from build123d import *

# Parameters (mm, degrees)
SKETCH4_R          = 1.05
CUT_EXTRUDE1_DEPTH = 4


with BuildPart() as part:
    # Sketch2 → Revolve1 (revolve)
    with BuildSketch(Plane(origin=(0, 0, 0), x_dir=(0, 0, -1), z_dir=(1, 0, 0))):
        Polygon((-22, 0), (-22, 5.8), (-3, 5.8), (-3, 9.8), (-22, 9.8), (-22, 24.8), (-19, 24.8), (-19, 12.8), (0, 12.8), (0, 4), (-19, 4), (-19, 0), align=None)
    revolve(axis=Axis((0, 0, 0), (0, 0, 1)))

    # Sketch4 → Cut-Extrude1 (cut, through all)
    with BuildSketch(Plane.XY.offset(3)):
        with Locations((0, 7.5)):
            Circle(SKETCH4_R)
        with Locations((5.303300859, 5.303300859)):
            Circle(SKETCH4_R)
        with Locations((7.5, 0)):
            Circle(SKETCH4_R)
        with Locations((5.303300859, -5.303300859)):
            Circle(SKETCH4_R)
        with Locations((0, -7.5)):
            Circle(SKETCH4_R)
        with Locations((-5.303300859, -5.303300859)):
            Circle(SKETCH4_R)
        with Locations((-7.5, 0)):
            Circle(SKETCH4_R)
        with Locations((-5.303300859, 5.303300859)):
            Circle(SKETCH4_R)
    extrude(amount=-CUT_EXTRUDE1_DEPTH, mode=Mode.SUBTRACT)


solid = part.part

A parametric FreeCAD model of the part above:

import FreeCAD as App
import Part
import Sketcher
from FreeCAD import Vector
Q = App.Units.Quantity

doc = App.newDocument("Part")
params = doc.addObject("Spreadsheet::Sheet", "Params")
for row, (alias, value) in enumerate([
    ("sketch1_width", "4 mm"),
    ("sketch1_width2", "12 mm"),
    ("sketch1_width3", "15 mm"),
    ("sketch1_height", "3 mm"),
    ("sketch1_height2", "19 mm"),
    ("revolution_angle", "360 deg"),
    ("sketch2_diameter", "2.1 mm"),
], start=1):
    params.set(f"A{row}", alias)
    params.set(f"B{row}", "=" + value)
    params.setAlias(f"B{row}", alias)

body = doc.addObject("PartDesign::Body", "Body")

# Sketch on YZ plane
sketch1 = doc.addObject("Sketcher::SketchObject", "Sketch")
body.addObject(sketch1)
sketch1.AttachmentSupport = (doc.YZ_Plane, [""])
sketch1.MapMode = "FlatFace"
sketch1.addGeometry([
    Part.LineSegment(Vector(5.8, 22, 0), Vector(0, 22, 0)),  # 0
    Part.LineSegment(Vector(0, 22, 0), Vector(0, 19, 0)),  # 1
    Part.LineSegment(Vector(0, 19, 0), Vector(4, 19, 0)),  # 2
    Part.LineSegment(Vector(4, 19, 0), Vector(4, 0, 0)),  # 3
    Part.LineSegment(Vector(4, 0, 0), Vector(12.8, 0, 0)),  # 4
    Part.LineSegment(Vector(12.8, 0, 0), Vector(12.8, 19, 0)),  # 5
    Part.LineSegment(Vector(12.8, 19, 0), Vector(24.8, 19, 0)),  # 6
    Part.LineSegment(Vector(24.8, 19, 0), Vector(24.8, 22, 0)),  # 7
    Part.LineSegment(Vector(24.8, 22, 0), Vector(9.8, 22, 0)),  # 8
    Part.LineSegment(Vector(9.8, 22, 0), Vector(9.8, 3, 0)),  # 9
    Part.LineSegment(Vector(9.8, 3, 0), Vector(5.8, 3, 0)),  # 10
    Part.LineSegment(Vector(5.8, 3, 0), Vector(5.8, 22, 0)),  # 11
], False)
sketch1.addConstraint([
    Sketcher.Constraint("Coincident", 0, 2, 1, 1),
    Sketcher.Constraint("Coincident", 1, 2, 2, 1),
    Sketcher.Constraint("Coincident", 2, 2, 3, 1),
    Sketcher.Constraint("Coincident", 3, 2, 4, 1),
    Sketcher.Constraint("Coincident", 4, 2, 5, 1),
    Sketcher.Constraint("Coincident", 5, 2, 6, 1),
    Sketcher.Constraint("Coincident", 6, 2, 7, 1),
    Sketcher.Constraint("Coincident", 7, 2, 8, 1),
    Sketcher.Constraint("Coincident", 8, 2, 9, 1),
    Sketcher.Constraint("Coincident", 9, 2, 10, 1),
    Sketcher.Constraint("Coincident", 10, 2, 11, 1),
    Sketcher.Constraint("Coincident", 11, 2, 0, 1),
    Sketcher.Constraint("Horizontal", 0),
    Sketcher.Constraint("Vertical", 1),
    Sketcher.Constraint("Horizontal", 2),
    Sketcher.Constraint("Vertical", 3),
    Sketcher.Constraint("Horizontal", 4),
    Sketcher.Constraint("Vertical", 5),
    Sketcher.Constraint("Horizontal", 6),
    Sketcher.Constraint("Vertical", 7),
    Sketcher.Constraint("Horizontal", 8),
    Sketcher.Constraint("Vertical", 9),
    Sketcher.Constraint("Horizontal", 10),
    Sketcher.Constraint("Vertical", 11),
    Sketcher.Constraint("PointOnObject", 0, 2, -2),
    Sketcher.Constraint("PointOnObject", 3, 2, -1),
    Sketcher.Constraint("Horizontal", 2, 2, 5, 2),
    Sketcher.Constraint("Horizontal", 0, 2, 7, 2),
    Sketcher.Constraint("Equal", 2, 10),
    Sketcher.Constraint("Equal", 5, 9),
    Sketcher.Constraint("DistanceX", 2, 1, 2, 2, Q("4 mm")),
    Sketcher.Constraint("DistanceX", 6, 1, 6, 2, Q("12 mm")),
    Sketcher.Constraint("DistanceX", 8, 2, 8, 1, Q("15 mm")),
    Sketcher.Constraint("DistanceY", 1, 2, 1, 1, Q("3 mm")),
    Sketcher.Constraint("DistanceY", 3, 2, 3, 1, Q("19 mm")),
    Sketcher.Constraint("DistanceX", 0, 2, 0, 1, Q("5.8 mm")),
])
sketch1.setExpression("Constraints[30]", "Params.sketch1_width")
sketch1.setExpression("Constraints[31]", "Params.sketch1_width2")
sketch1.setExpression("Constraints[32]", "Params.sketch1_width3")
sketch1.setExpression("Constraints[33]", "Params.sketch1_height")
sketch1.setExpression("Constraints[34]", "Params.sketch1_height2")
revolution = doc.addObject("PartDesign::Revolution", "Revolution")
body.addObject(revolution)
revolution.Profile = sketch1
revolution.ReferenceAxis = (sketch1, ["V_Axis"])
revolution.setExpression("Angle", "Params.revolution_angle")

# Sketch on XY plane
sketch2 = doc.addObject("Sketcher::SketchObject", "Sketch001")
body.addObject(sketch2)
sketch2.AttachmentSupport = (doc.XY_Plane, [""])
sketch2.MapMode = "FlatFace"
sketch2.AttachmentOffset = App.Placement(Vector(0, 0, 3), App.Rotation())
sketch2.addGeometry([
    Part.Circle(Vector(0, 7.5, 0), Vector(0, 0, 1), 1.1),  # 0
    Part.Circle(Vector(5.3, 5.3, 0), Vector(0, 0, 1), 1.1),  # 1
    Part.Circle(Vector(7.5, 0, 0), Vector(0, 0, 1), 1.1),  # 2
    Part.Circle(Vector(5.3, -5.3, 0), Vector(0, 0, 1), 1.1),  # 3
    Part.Circle(Vector(0, -7.5, 0), Vector(0, 0, 1), 1.1),  # 4
    Part.Circle(Vector(-5.3, -5.3, 0), Vector(0, 0, 1), 1.1),  # 5
    Part.Circle(Vector(-7.5, 0, 0), Vector(0, 0, 1), 1.1),  # 6
    Part.Circle(Vector(-5.3, 5.3, 0), Vector(0, 0, 1), 1.1),  # 7
], False)
sketch2.addConstraint([
    Sketcher.Constraint("Equal", 0, 1),
    Sketcher.Constraint("Equal", 1, 2),
    Sketcher.Constraint("Equal", 2, 3),
    Sketcher.Constraint("Equal", 3, 4),
    Sketcher.Constraint("Equal", 4, 5),
    Sketcher.Constraint("Equal", 5, 6),
    Sketcher.Constraint("Equal", 6, 7),
    Sketcher.Constraint("Symmetric", 0, 3, 4, 3, -1, 1),
    Sketcher.Constraint("Symmetric", 1, 3, 5, 3, -1, 1),
    Sketcher.Constraint("Symmetric", 2, 3, 6, 3, -1, 1),
    Sketcher.Constraint("Symmetric", 3, 3, 7, 3, -1, 1),
    Sketcher.Constraint("Symmetric", 3, 3, 5, 3, -2),
    Sketcher.Constraint("PointOnObject", 0, 3, -2),
    Sketcher.Constraint("PointOnObject", 2, 3, -1),
    Sketcher.Constraint("Diameter", 0, Q("2.1 mm")),
    Sketcher.Constraint("DistanceY", 4, 3, 0, 3, Q("15 mm")),
    Sketcher.Constraint("DistanceX", -1, 1, 2, 3, Q("7.5 mm")),
    Sketcher.Constraint("DistanceX", -1, 1, 1, 3, Q("5.303301 mm")),
    Sketcher.Constraint("DistanceY", -1, 1, 1, 3, Q("5.303301 mm")),
])
sketch2.setExpression("Constraints[14]", "Params.sketch2_diameter")
pocket1 = doc.addObject("PartDesign::Pocket", "Pocket")
body.addObject(pocket1)
pocket1.Profile = sketch2
pocket1.Type = "ThroughAll"

doc.recompute()
